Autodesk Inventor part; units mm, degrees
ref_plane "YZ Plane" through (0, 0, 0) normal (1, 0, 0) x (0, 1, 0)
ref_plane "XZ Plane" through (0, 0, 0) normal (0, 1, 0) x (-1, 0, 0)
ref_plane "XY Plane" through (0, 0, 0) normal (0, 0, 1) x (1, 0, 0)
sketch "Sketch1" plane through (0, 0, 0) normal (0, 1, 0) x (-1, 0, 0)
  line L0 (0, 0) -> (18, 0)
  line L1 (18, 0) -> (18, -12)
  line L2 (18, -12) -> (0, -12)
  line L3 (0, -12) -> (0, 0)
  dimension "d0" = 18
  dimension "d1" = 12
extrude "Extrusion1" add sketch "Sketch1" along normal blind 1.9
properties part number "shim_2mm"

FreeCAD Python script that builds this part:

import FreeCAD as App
import Part
import Sketcher
Q = App.Units.Quantity

doc = App.newDocument("Part")
params = doc.addObject("Spreadsheet::Sheet", "Params")
for row, (alias, value) in enumerate([
    ("sketch1_width", "18 mm"),
    ("sketch1_height", "12 mm"),
    ("pad1_length", "1.9 mm"),
], start=1):
    params.set(f"A{row}", alias)
    params.set(f"B{row}", "=" + value)
    params.setAlias(f"B{row}", alias)

body = doc.addObject("PartDesign::Body", "Body")

# Sketch on XZ plane
sketch1 = body.newObject("Sketcher::SketchObject", "Sketch")
sketch1.AttachmentSupport = (doc.getObject("XZ_Plane"), [""])
sketch1.MapMode = "FlatFace"
sketch1.addGeometry([
    Part.LineSegment(App.Vector(-18, 0, 0), App.Vector(0, 0, 0)),
    Part.LineSegment(App.Vector(0, 0, 0), App.Vector(0, -12, 0)),
    Part.LineSegment(App.Vector(0, -12, 0), App.Vector(-18, -12, 0)),
    Part.LineSegment(App.Vector(-18, -12, 0), App.Vector(-18, 0, 0)),
], False)
sketch1.addConstraint([
    Sketcher.Constraint("Coincident", 0, 2, 1, 1),
    Sketcher.Constraint("Coincident", 1, 2, 2, 1),
    Sketcher.Constraint("Coincident", 2, 2, 3, 1),
    Sketcher.Constraint("Coincident", 3, 2, 0, 1),
    Sketcher.Constraint("Horizontal", 0),
    Sketcher.Constraint("Vertical", 1),
    Sketcher.Constraint("Horizontal", 2),
    Sketcher.Constraint("Vertical", 3),
    Sketcher.Constraint("Coincident", 0, 2, -1, 1),
    Sketcher.Constraint("DistanceX", 0, 1, 0, 2, Q("18 mm")),
    Sketcher.Constraint("DistanceY", 1, 2, 1, 1, Q("12 mm")),
])
sketch1.setExpression("Constraints[9]", "Params.sketch1_width")
sketch1.setExpression("Constraints[10]", "Params.sketch1_height")
pad1 = body.newObject("PartDesign::Pad", "Pad")
pad1.Profile = sketch1
pad1.setExpression("Length", "Params.pad1_length")
pad1.Reversed = True

doc.recompute()
